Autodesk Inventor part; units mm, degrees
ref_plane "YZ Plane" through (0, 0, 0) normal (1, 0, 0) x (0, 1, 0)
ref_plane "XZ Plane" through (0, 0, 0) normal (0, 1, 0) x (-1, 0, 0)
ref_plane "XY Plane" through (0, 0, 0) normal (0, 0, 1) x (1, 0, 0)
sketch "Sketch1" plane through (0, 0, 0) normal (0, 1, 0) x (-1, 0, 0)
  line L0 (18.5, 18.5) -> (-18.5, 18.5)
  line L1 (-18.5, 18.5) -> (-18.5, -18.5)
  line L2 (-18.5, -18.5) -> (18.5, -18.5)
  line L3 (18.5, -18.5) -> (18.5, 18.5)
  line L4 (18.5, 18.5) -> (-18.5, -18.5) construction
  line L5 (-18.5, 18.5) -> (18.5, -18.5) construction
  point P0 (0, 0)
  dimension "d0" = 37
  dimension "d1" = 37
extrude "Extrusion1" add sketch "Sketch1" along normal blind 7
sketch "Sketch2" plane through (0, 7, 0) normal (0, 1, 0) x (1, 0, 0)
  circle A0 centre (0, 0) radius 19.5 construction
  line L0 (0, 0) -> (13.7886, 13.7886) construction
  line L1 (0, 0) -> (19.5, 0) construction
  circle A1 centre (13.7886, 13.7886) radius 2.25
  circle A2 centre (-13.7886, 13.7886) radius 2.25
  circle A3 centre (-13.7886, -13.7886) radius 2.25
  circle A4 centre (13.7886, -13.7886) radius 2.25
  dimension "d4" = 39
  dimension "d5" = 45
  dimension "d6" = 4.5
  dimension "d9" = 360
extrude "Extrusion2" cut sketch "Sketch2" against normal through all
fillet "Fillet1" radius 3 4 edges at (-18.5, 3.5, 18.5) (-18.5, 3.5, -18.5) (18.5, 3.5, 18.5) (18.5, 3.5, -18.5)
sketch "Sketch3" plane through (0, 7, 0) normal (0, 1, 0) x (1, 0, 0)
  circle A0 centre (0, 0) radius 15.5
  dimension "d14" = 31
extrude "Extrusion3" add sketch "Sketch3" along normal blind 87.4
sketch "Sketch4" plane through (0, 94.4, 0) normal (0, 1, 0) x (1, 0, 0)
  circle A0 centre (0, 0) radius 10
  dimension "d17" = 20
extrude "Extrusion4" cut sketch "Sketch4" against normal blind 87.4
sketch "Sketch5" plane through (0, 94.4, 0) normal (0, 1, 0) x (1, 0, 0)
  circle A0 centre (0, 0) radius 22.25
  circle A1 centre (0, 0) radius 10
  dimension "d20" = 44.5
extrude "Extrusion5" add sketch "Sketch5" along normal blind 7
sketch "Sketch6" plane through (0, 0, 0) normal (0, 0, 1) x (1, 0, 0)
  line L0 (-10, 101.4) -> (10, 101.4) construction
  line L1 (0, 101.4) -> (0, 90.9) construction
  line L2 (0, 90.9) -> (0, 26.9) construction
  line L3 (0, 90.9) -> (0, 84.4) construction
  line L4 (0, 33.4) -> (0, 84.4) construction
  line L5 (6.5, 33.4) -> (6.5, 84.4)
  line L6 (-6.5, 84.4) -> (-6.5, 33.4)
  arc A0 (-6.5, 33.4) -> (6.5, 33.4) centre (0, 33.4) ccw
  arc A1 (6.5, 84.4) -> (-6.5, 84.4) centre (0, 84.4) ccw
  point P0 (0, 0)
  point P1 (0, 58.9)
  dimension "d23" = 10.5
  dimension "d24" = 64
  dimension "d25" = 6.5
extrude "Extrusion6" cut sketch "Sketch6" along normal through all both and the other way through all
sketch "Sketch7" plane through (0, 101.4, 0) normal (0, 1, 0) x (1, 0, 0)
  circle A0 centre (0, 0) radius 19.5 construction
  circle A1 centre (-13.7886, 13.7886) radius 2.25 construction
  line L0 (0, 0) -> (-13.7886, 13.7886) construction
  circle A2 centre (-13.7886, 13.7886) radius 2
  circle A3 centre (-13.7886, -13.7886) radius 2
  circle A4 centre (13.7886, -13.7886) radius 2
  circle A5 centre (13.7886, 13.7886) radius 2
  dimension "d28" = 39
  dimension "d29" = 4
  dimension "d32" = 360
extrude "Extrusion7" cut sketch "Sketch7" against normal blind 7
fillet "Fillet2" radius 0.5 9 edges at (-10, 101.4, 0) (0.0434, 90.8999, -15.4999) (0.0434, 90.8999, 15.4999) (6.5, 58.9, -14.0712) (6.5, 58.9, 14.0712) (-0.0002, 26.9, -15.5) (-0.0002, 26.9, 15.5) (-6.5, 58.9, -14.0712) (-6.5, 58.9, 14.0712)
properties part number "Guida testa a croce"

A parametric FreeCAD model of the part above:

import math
import FreeCAD as App
import Part
import Sketcher
Q = App.Units.Quantity


def edges_at(feature, points):
    """Names of the edges that pass closest to the given points."""
    edges = feature.Shape.Edges
    near = lambda p: min(range(len(edges)), key=lambda i: edges[i].distToShape(Part.Vertex(*p))[0])
    return sorted({f"Edge{near(p) + 1}" for p in points})


def add_polygon(sketch, points):
    """Adds a closed chain of lines whose ends are joined by coincident constraints."""
    first, n = sketch.GeometryCount, len(points)
    for a, b in zip(points, points[1:] + points[:1]):
        sketch.addGeometry(Part.LineSegment(App.Vector(*a, 0), App.Vector(*b, 0)), False)
    for i in range(n):
        sketch.addConstraint(Sketcher.Constraint("Coincident", first + i, 2, first + (i + 1) % n, 1))

doc = App.newDocument("Part")
body = doc.addObject("PartDesign::Body", "Body")

sketch1 = doc.addObject("Sketcher::SketchObject", "Sketch")
body.addObject(sketch1)
sketch1.AttachmentSupport = (doc.XZ_Plane, [""])
sketch1.MapMode = "FlatFace"
add_polygon(sketch1, [(-18.5, -18.5), (-18.5, 18.5), (18.5, 18.5), (18.5, -18.5)])
sketch1.addConstraint([
    Sketcher.Constraint("Vertical", 0),
    Sketcher.Constraint("Horizontal", 1),
    Sketcher.Constraint("Vertical", 2),
    Sketcher.Constraint("Horizontal", 3),
    Sketcher.Constraint("Symmetric", 0, 2, 2, 2, -1, 1),
    Sketcher.Constraint("Equal", 3, 0),
    Sketcher.Constraint("DistanceX", 1, 1, 1, 2, Q("37 mm")),
])
pad1 = doc.addObject("PartDesign::Pad", "Pad")
body.addObject(pad1)
pad1.Profile = sketch1
pad1.Length = 7
pad1.Reversed = True

sketch2 = doc.addObject("Sketcher::SketchObject", "Sketch001")
body.addObject(sketch2)
sketch2.AttachmentSupport = (doc.XZ_Plane, [""])
sketch2.MapMode = "FlatFace"
sketch2.AttachmentOffset = App.Placement(App.Vector(0, 0, -7), App.Rotation())
sketch2.addGeometry([
    Part.Circle(App.Vector(13.7886, -13.7886, 0), App.Vector(0, 0, 1), 2.25),
    Part.Circle(App.Vector(-13.7886, -13.7886, 0), App.Vector(0, 0, 1), 2.25),
    Part.Circle(App.Vector(-13.7886, 13.7886, 0), App.Vector(0, 0, 1), 2.25),
    Part.Circle(App.Vector(13.7886, 13.7886, 0), App.Vector(0, 0, 1), 2.25),
], False)
sketch2.addConstraint([
    Sketcher.Constraint("Equal", 0, 1),
    Sketcher.Constraint("Equal", 1, 2),
    Sketcher.Constraint("Equal", 2, 3),
    Sketcher.Constraint("Symmetric", 0, 3, 2, 3, -1, 1),
    Sketcher.Constraint("Symmetric", 1, 3, 3, 3, -1, 1),
    Sketcher.Constraint("Symmetric", 0, 3, 1, 3, -2),
    Sketcher.Constraint("Diameter", 0, Q("4.5 mm")),
    Sketcher.Constraint("DistanceX", -1, 1, 0, 3, Q("13.7886 mm")),
    Sketcher.Constraint("DistanceY", 0, 3, -1, 1, Q("13.7886 mm")),
])
pocket1 = doc.addObject("PartDesign::Pocket", "Pocket")
body.addObject(pocket1)
pocket1.Profile = sketch2
pocket1.Type = "ThroughAll"
pocket1.Reversed = True
doc.recompute()

fillet = doc.addObject("PartDesign::Fillet", "Fillet")
body.addObject(fillet)
fillet.Base = (pocket1, edges_at(pocket1, [
    (-18.5, 3.5, 18.5),
    (-18.5, 3.5, -18.5),
    (18.5, 3.5, 18.5),
    (18.5, 3.5, -18.5),
]))
fillet.Radius = 3

sketch3 = doc.addObject("Sketcher::SketchObject", "Sketch002")
body.addObject(sketch3)
sketch3.AttachmentSupport = (doc.XZ_Plane, [""])
sketch3.MapMode = "FlatFace"
sketch3.AttachmentOffset = App.Placement(App.Vector(0, 0, -7), App.Rotation())
sketch3.addGeometry(Part.Circle(App.Vector(0, 0, 0), App.Vector(0, 0, 1), 15.5), False)
sketch3.addConstraint([
    Sketcher.Constraint("Coincident", 0, 3, -1, 1),
    Sketcher.Constraint("Diameter", 0, Q("31 mm")),
])
pad2 = doc.addObject("PartDesign::Pad", "Pad001")
body.addObject(pad2)
pad2.Profile = sketch3
pad2.Length = 87.4
pad2.Reversed = True

sketch4 = doc.addObject("Sketcher::SketchObject", "Sketch003")
body.addObject(sketch4)
sketch4.AttachmentSupport = (doc.XZ_Plane, [""])
sketch4.MapMode = "FlatFace"
sketch4.AttachmentOffset = App.Placement(App.Vector(0, 0, -94.4), App.Rotation())
sketch4.addGeometry(Part.Circle(App.Vector(0, 0, 0), App.Vector(0, 0, 1), 10), False)
sketch4.addConstraint([
    Sketcher.Constraint("Coincident", 0, 3, -1, 1),
    Sketcher.Constraint("Diameter", 0, Q("20 mm")),
])
pocket2 = doc.addObject("PartDesign::Pocket", "Pocket001")
body.addObject(pocket2)
pocket2.Profile = sketch4
pocket2.Length = 87.4
pocket2.Reversed = True

sketch5 = doc.addObject("Sketcher::SketchObject", "Sketch004")
body.addObject(sketch5)
sketch5.AttachmentSupport = (doc.XZ_Plane, [""])
sketch5.MapMode = "FlatFace"
sketch5.AttachmentOffset = App.Placement(App.Vector(0, 0, -94.4), App.Rotation())
sketch5.addGeometry([
    Part.Circle(App.Vector(0, 0, 0), App.Vector(0, 0, 1), 22.25),
    Part.Circle(App.Vector(0, 0, 0), App.Vector(0, 0, 1), 10),
], False)
sketch5.addConstraint([
    Sketcher.Constraint("Coincident", 0, 3, -1, 1),
    Sketcher.Constraint("Coincident", 1, 3, -1, 1),
    Sketcher.Constraint("Diameter", 0, Q("44.5 mm")),
    Sketcher.Constraint("Diameter", 1, Q("20 mm")),
])
pad3 = doc.addObject("PartDesign::Pad", "Pad002")
body.addObject(pad3)
pad3.Profile = sketch5
pad3.Length = 7
pad3.Reversed = True

sketch6 = doc.addObject("Sketcher::SketchObject", "Sketch005")
body.addObject(sketch6)
sketch6.AttachmentSupport = (doc.XY_Plane, [""])
sketch6.MapMode = "FlatFace"
sketch6.addGeometry([
    Part.ArcOfCircle(Part.Circle(App.Vector(0, 33.4, 0), App.Vector(0, 0, 1), 6.5), math.radians(180), math.radians(360)),
    Part.LineSegment(App.Vector(6.5, 33.4, 0), App.Vector(6.5, 84.4, 0)),
    Part.ArcOfCircle(Part.Circle(App.Vector(0, 84.4, 0), App.Vector(0, 0, 1), 6.5), math.radians(0), math.radians(180)),
    Part.LineSegment(App.Vector(-6.5, 84.4, 0), App.Vector(-6.5, 33.4, 0)),
], False)
sketch6.addConstraint([
    Sketcher.Constraint("Tangent", 0, 2, 1, 1),
    Sketcher.Constraint("Tangent", 1, 2, 2, 1),
    Sketcher.Constraint("Tangent", 2, 2, 3, 1),
    Sketcher.Constraint("Tangent", 3, 2, 0, 1),
    Sketcher.Constraint("Vertical", 1),
    Sketcher.Constraint("Vertical", 3),
    Sketcher.Constraint("PointOnObject", 0, 3, -2),
    Sketcher.Constraint("Radius", 0, Q("6.5 mm")),
    Sketcher.Constraint("DistanceY", 1, 1, 1, 2, Q("51 mm")),
    Sketcher.Constraint("DistanceY", -1, 1, 0, 3, Q("33.4 mm")),
])
pocket3 = doc.addObject("PartDesign::Pocket", "Pocket002")
body.addObject(pocket3)
pocket3.Profile = sketch6
pocket3.Type = "ThroughAll"
pocket3.Midplane = True

sketch7 = doc.addObject("Sketcher::SketchObject", "Sketch006")
body.addObject(sketch7)
sketch7.AttachmentSupport = (doc.XZ_Plane, [""])
sketch7.MapMode = "FlatFace"
sketch7.AttachmentOffset = App.Placement(App.Vector(0, 0, -101.4), App.Rotation())
sketch7.addGeometry([
    Part.Circle(App.Vector(-13.7886, -13.7886, 0), App.Vector(0, 0, 1), 2),
    Part.Circle(App.Vector(-13.7886, 13.7886, 0), App.Vector(0, 0, 1), 2),
    Part.Circle(App.Vector(13.7886, 13.7886, 0), App.Vector(0, 0, 1), 2),
    Part.Circle(App.Vector(13.7886, -13.7886, 0), App.Vector(0, 0, 1), 2),
], False)
sketch7.addConstraint([
    Sketcher.Constraint("Equal", 0, 1),
    Sketcher.Constraint("Equal", 1, 2),
    Sketcher.Constraint("Equal", 2, 3),
    Sketcher.Constraint("Symmetric", 0, 3, 2, 3, -1, 1),
    Sketcher.Constraint("Symmetric", 1, 3, 3, 3, -1, 1),
    Sketcher.Constraint("Symmetric", 1, 3, 2, 3, -2),
    Sketcher.Constraint("Diameter", 0, Q("4 mm")),
    Sketcher.Constraint("DistanceX", 0, 3, -1, 1, Q("13.7886 mm")),
    Sketcher.Constraint("DistanceY", 0, 3, -1, 1, Q("13.7886 mm")),
])
pocket4 = doc.addObject("PartDesign::Pocket", "Pocket003")
body.addObject(pocket4)
pocket4.Profile = sketch7
pocket4.Length = 7
pocket4.Reversed = True
doc.recompute()

fillet2 = doc.addObject("PartDesign::Fillet", "Fillet001")
body.addObject(fillet2)
fillet2.Base = (pocket4, edges_at(pocket4, [
    (-10, 101.4, 0),
    (0.043, 90.9, -15.5),
    (0.043, 90.9, 15.5),
    (6.5, 58.9, -14.071),
    (6.5, 58.9, 14.071),
    (0, 26.9, -15.5),
    (0, 26.9, 15.5),
    (-6.5, 58.9, -14.071),
    (-6.5, 58.9, 14.071),
]))
fillet2.Radius = 0.5

doc.recompute()
